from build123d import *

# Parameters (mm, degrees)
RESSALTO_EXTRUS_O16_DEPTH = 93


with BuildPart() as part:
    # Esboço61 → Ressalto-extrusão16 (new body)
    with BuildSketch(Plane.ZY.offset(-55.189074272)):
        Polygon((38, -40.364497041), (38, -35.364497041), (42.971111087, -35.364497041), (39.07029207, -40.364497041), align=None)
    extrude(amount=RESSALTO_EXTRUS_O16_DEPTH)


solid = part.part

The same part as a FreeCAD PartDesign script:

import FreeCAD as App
import Part
import Sketcher

V = App.Vector
Q = App.Units.Quantity

doc = App.newDocument("Part")
body = doc.addObject("PartDesign::Body", "Body")

# Sketch on YZ plane
sketch1 = body.newObject("Sketcher::SketchObject", "Sketch")
sketch1.AttachmentSupport = (doc.getObject("YZ_Plane"), [""])
sketch1.MapMode = "FlatFace"
sketch1.AttachmentOffset = App.Placement(V(0, 0, 55.189074), App.Rotation())
sketch1.addGeometry([
    Part.LineSegment(V(-35.4, 38, 0), V(-40.4, 38, 0)),
    Part.LineSegment(V(-40.4, 38, 0), V(-40.4, 39.1, 0)),
    Part.LineSegment(V(-40.4, 39.1, 0), V(-35.4, 43, 0)),
    Part.LineSegment(V(-35.4, 43, 0), V(-35.4, 38, 0)),
], False)
sketch1.addConstraint([
    Sketcher.Constraint("Coincident", 0, 2, 1, 1),
    Sketcher.Constraint("Coincident", 1, 2, 2, 1),
    Sketcher.Constraint("Coincident", 2, 2, 3, 1),
    Sketcher.Constraint("Coincident", 3, 2, 0, 1),
    Sketcher.Constraint("Horizontal", 0),
    Sketcher.Constraint("Vertical", 1),
    Sketcher.Constraint("Vertical", 3),
    Sketcher.Constraint("DistanceX", 0, 2, 0, 1, Q("5 mm")),
    Sketcher.Constraint("DistanceY", -1, 1, 0, 2, Q("38 mm")),
    Sketcher.Constraint("DistanceY", 3, 2, 3, 1, Q("4.971111 mm")),
    Sketcher.Constraint("Distance", 2, Q("6.341639 mm")),
    Sketcher.Constraint("DistanceX", 0, 2, -1, 1, Q("40.364497 mm")),
])
pad1 = body.newObject("PartDesign::Pad", "Pad")
pad1.Profile = sketch1
pad1.Length = 93
pad1.Reversed = True

doc.recompute()
